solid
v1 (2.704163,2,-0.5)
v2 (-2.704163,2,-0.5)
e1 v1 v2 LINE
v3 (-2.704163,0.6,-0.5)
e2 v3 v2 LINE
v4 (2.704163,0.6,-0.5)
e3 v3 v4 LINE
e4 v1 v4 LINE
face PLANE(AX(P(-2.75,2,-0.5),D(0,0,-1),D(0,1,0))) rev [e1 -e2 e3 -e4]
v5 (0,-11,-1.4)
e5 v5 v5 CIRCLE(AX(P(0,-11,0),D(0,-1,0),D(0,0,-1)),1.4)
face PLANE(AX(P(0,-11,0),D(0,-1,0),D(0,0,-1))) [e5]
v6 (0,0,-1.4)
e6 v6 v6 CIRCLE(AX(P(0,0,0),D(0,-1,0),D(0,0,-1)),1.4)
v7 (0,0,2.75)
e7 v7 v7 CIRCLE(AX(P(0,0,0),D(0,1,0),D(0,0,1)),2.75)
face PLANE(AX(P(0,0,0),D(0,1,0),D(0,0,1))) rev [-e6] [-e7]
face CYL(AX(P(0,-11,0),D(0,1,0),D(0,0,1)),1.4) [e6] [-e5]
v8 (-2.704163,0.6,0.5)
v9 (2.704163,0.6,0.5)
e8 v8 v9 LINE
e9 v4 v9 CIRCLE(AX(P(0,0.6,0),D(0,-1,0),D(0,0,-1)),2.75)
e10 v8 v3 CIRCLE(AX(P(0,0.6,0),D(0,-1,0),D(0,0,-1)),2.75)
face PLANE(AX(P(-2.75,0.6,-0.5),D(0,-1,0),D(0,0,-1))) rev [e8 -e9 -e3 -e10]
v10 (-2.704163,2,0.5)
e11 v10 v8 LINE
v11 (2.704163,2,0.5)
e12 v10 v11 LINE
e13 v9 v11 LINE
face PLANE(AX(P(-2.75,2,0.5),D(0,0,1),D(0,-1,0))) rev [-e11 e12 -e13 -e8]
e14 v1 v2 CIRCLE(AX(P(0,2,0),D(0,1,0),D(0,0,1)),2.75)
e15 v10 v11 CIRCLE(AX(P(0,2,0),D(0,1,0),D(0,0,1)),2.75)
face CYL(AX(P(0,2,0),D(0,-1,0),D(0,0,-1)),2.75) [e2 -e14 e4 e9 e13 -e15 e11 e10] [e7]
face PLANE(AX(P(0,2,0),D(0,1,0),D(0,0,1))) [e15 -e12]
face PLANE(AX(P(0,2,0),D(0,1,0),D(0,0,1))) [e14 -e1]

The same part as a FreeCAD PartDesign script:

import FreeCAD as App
import Part
import Sketcher
from FreeCAD import Vector


def add_polygon(sketch, points):
    """Adds a closed chain of lines whose ends are joined by coincident constraints."""
    first, n = sketch.GeometryCount, len(points)
    for a, b in zip(points, points[1:] + points[:1]):
        sketch.addGeometry(Part.LineSegment(App.Vector(*a, 0), App.Vector(*b, 0)), False)
    for i in range(n):
        sketch.addConstraint(Sketcher.Constraint("Coincident", first + i, 2, first + (i + 1) % n, 1))

doc = App.newDocument("Part")
body = doc.addObject("PartDesign::Body", "Body")

sketch1 = body.newObject("Sketcher::SketchObject", "Sketch")
sketch1.AttachmentSupport = (doc.getObject("XZ_Plane"), [""])
sketch1.MapMode = "FlatFace"
sketch1.addGeometry(Part.Circle(Vector(0, 0, 0), Vector(0, 0, 1), 2.8), False)
sketch1.addConstraint([
    Sketcher.Constraint("Coincident", 0, 3, -1, 1),
    Sketcher.Constraint("Diameter", 0, 5.5),
])
pad1 = body.newObject("PartDesign::Pad", "Pad")
pad1.Profile = sketch1
pad1.Length = 2
pad1.Reversed = True

sketch2 = body.newObject("Sketcher::SketchObject", "Sketch001")
sketch2.AttachmentSupport = (doc.getObject("XZ_Plane"), [""])
sketch2.MapMode = "FlatFace"
sketch2.addGeometry(Part.Circle(Vector(0, 0, 0), Vector(0, 0, 1), 1.4), False)
sketch2.addConstraint([
    Sketcher.Constraint("Coincident", 0, 3, -1, 1),
    Sketcher.Constraint("Diameter", 0, 2.8),
])
pad2 = body.newObject("PartDesign::Pad", "Pad001")
pad2.Profile = sketch2
pad2.Length = 11

sketch3 = body.newObject("Sketcher::SketchObject", "Sketch002")
sketch3.AttachmentSupport = (doc.getObject("YZ_Plane"), [""])
sketch3.MapMode = "FlatFace"
add_polygon(sketch3, [(2, 0.5), (0.6, 0.5), (0.6, -0.5), (2, -0.5)])
sketch3.addConstraint([
    Sketcher.Constraint("Horizontal", 0),
    Sketcher.Constraint("Vertical", 1),
    Sketcher.Constraint("Horizontal", 2),
    Sketcher.Constraint("Vertical", 3),
    Sketcher.Constraint("DistanceY", 1, 2, 1, 1, 1.0),
    Sketcher.Constraint("DistanceX", 0, 2, 0, 1, 1.4),
    Sketcher.Constraint("DistanceX", -1, 1, 2, 2, 2.0),
    Sketcher.Constraint("DistanceY", -1, 1, 0, 2, 0.5),
])
pocket1 = body.newObject("PartDesign::Pocket", "Pocket")
pocket1.Profile = sketch3
pocket1.Type = "ThroughAll"
pocket1.Midplane = True

doc.recompute()
